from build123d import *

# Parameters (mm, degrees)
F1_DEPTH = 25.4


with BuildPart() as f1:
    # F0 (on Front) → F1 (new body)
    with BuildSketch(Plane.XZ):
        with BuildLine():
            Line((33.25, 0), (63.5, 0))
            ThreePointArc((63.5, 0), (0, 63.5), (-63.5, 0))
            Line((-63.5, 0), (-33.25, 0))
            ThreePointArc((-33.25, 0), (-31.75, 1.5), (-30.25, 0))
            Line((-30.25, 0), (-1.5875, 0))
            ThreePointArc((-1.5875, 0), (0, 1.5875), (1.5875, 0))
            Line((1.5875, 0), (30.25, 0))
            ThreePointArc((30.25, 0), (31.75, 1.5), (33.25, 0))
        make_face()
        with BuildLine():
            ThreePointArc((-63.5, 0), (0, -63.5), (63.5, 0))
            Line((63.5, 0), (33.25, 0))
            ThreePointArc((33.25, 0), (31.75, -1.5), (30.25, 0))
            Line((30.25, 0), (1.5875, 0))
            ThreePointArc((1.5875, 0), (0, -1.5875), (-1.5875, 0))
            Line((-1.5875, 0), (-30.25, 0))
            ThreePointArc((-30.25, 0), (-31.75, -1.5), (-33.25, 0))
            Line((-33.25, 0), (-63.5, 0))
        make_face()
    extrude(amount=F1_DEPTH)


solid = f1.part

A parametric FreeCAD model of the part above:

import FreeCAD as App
import Part
import Sketcher

V = App.Vector
Q = App.Units.Quantity

doc = App.newDocument("Part")
body = doc.addObject("PartDesign::Body", "Body")

# Sketch on XZ plane
sketch1 = body.newObject("Sketcher::SketchObject", "Sketch")
sketch1.AttachmentSupport = (doc.getObject("XZ_Plane"), [""])
sketch1.MapMode = "FlatFace"
sketch1.addGeometry([
    Part.Circle(V(0, 0, 0), V(0, 0, 1), 63.5),
    Part.Circle(V(-31.8, 0, 0), V(0, 0, 1), 1.5),
    Part.Circle(V(0, 0, 0), V(0, 0, 1), 1.6),
    Part.Circle(V(31.8, 0, 0), V(0, 0, 1), 1.5),
], False)
sketch1.addConstraint([
    Sketcher.Constraint("Coincident", 0, 3, -1, 1),
    Sketcher.Constraint("Coincident", 2, 3, -1, 1),
    Sketcher.Constraint("Equal", 1, 3),
    Sketcher.Constraint("Symmetric", 1, 3, 3, 3, -1, 1),
    Sketcher.Constraint("PointOnObject", 1, 3, -1),
    Sketcher.Constraint("Diameter", 0, Q("5 in")),
    Sketcher.Constraint("Diameter", 2, Q("0.125 in")),
    Sketcher.Constraint("DistanceX", 1, 3, 3, 3, Q("2.5 in")),
    Sketcher.Constraint("Diameter", 1, Q("3 mm")),
])
pad1 = body.newObject("PartDesign::Pad", "Pad")
pad1.Profile = sketch1
pad1.Length = Q("1 in")

doc.recompute()
